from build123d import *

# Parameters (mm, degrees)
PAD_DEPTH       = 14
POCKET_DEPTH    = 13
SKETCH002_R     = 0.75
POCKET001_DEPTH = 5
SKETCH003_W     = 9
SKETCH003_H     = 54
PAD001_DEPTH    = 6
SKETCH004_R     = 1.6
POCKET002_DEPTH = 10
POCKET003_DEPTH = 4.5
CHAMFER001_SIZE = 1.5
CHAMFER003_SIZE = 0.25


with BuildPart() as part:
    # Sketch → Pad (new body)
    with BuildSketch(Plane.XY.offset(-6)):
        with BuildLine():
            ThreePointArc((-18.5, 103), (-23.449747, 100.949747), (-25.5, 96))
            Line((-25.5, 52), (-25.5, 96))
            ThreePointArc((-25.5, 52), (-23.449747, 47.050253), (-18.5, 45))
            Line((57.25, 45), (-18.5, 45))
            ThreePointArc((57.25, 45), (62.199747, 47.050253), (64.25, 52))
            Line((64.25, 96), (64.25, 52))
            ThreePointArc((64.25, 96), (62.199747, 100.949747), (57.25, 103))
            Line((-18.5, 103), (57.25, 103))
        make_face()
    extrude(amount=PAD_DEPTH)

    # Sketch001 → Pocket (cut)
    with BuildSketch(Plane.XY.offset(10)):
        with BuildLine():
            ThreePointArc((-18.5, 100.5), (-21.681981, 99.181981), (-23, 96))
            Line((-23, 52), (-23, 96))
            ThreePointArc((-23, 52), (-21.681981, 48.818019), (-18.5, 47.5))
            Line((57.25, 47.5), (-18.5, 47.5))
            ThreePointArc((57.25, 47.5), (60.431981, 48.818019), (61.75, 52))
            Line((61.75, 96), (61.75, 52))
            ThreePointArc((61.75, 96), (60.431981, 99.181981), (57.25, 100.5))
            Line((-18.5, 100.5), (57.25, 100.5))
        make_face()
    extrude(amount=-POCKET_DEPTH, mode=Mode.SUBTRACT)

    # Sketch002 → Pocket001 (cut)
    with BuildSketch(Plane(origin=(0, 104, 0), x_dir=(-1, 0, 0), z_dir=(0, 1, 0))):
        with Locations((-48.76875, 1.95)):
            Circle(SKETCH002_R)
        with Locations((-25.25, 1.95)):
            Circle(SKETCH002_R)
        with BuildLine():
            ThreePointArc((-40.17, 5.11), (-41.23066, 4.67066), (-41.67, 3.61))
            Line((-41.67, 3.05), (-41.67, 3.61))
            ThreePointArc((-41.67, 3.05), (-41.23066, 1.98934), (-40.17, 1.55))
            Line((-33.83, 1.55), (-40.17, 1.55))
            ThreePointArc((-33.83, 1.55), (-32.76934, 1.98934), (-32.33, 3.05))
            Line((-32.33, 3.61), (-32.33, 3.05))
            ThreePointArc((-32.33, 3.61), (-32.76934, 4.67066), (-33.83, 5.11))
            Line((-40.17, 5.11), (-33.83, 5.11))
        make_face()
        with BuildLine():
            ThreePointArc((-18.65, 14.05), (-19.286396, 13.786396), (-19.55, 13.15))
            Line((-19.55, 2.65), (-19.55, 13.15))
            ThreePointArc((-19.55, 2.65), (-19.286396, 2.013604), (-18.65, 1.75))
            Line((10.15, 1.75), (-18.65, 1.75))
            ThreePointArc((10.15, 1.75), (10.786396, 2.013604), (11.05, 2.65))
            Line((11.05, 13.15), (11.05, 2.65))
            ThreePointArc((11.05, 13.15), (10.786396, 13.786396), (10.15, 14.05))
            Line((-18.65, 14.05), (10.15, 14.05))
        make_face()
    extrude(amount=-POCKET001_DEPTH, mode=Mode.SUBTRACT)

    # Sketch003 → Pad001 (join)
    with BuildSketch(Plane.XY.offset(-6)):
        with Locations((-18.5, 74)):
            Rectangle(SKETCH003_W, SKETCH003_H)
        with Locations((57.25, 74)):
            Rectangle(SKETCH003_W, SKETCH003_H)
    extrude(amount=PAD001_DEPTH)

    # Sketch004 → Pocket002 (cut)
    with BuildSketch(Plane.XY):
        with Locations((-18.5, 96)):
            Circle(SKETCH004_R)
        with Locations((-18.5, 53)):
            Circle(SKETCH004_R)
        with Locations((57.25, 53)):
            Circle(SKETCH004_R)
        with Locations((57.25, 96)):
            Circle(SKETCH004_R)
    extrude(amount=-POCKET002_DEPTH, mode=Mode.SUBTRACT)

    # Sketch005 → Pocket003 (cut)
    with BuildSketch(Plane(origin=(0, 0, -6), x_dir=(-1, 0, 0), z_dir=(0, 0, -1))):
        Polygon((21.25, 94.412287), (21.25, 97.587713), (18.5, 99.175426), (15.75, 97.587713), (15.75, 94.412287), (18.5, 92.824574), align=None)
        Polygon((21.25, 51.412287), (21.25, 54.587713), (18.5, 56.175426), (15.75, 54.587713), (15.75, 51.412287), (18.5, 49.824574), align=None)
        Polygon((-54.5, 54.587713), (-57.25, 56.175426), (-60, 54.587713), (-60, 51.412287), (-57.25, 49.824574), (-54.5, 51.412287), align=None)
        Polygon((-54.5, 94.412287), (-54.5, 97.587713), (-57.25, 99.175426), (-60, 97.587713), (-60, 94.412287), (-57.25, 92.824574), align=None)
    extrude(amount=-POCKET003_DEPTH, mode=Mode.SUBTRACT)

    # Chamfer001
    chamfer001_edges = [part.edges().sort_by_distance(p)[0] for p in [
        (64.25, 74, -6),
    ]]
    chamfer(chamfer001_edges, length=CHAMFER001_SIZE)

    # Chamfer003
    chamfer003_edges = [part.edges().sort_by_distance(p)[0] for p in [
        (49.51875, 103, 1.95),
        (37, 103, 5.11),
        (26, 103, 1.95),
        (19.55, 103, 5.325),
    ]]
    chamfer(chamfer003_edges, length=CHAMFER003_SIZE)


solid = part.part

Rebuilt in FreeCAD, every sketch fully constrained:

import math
import FreeCAD as App
import Part
import Sketcher
from FreeCAD import Vector
Q = App.Units.Quantity


def edges_at(feature, points):
    """Names of the edges that pass closest to the given points."""
    edges = feature.Shape.Edges
    near = lambda p: min(range(len(edges)), key=lambda i: edges[i].distToShape(Part.Vertex(*p))[0])
    return sorted({f"Edge{near(p) + 1}" for p in points})

doc = App.newDocument("Part")
body = doc.addObject("PartDesign::Body", "Body")

sketch1 = body.newObject("Sketcher::SketchObject", "Sketch")
sketch1.AttachmentSupport = (doc.getObject("XY_Plane"), [""])
sketch1.MapMode = "FlatFace"
sketch1.AttachmentOffset = App.Placement(Vector(0, 0, -6), App.Rotation())
sketch1.addGeometry(Part.ArcOfCircle(Part.Circle(Vector(-18, 96, 0), Vector(0, 0, 1), 7), math.radians(90), math.radians(180)), False)
sketch1.addGeometry(Part.LineSegment(Vector(-26, 96, 0), Vector(-26, 52, 0)), False)
sketch1.addGeometry(Part.ArcOfCircle(Part.Circle(Vector(-18, 52, 0), Vector(0, 0, 1), 7), math.radians(-180), math.radians(-90)), False)
sketch1.addGeometry(Part.LineSegment(Vector(-18, 45, 0), Vector(57, 45, 0)), False)
sketch1.addGeometry(Part.ArcOfCircle(Part.Circle(Vector(57, 52, 0), Vector(0, 0, 1), 7), math.radians(-90), math.radians(0)), False)
sketch1.addGeometry(Part.LineSegment(Vector(64, 52, 0), Vector(64, 96, 0)), False)
sketch1.addGeometry(Part.ArcOfCircle(Part.Circle(Vector(57, 96, 0), Vector(0, 0, 1), 7), math.radians(0), math.radians(90)), False)
sketch1.addGeometry(Part.LineSegment(Vector(57, 103, 0), Vector(-18, 103, 0)), False)
sketch1.addConstraint(Sketcher.Constraint("Tangent", 0, 2, 1, 1))
sketch1.addConstraint(Sketcher.Constraint("Tangent", 1, 2, 2, 1))
sketch1.addConstraint(Sketcher.Constraint("Tangent", 2, 2, 3, 1))
sketch1.addConstraint(Sketcher.Constraint("Tangent", 3, 2, 4, 1))
sketch1.addConstraint(Sketcher.Constraint("Tangent", 4, 2, 5, 1))
sketch1.addConstraint(Sketcher.Constraint("Tangent", 5, 2, 6, 1))
sketch1.addConstraint(Sketcher.Constraint("Tangent", 6, 2, 7, 1))
sketch1.addConstraint(Sketcher.Constraint("Tangent", 7, 2, 0, 1))
sketch1.addConstraint(Sketcher.Constraint("Vertical", 1))
sketch1.addConstraint(Sketcher.Constraint("Horizontal", 3))
sketch1.addConstraint(Sketcher.Constraint("Vertical", 5))
sketch1.addConstraint(Sketcher.Constraint("Horizontal", 7))
sketch1.addConstraint(Sketcher.Constraint("Equal", 0, 2))
sketch1.addConstraint(Sketcher.Constraint("Equal", 2, 4))
sketch1.addConstraint(Sketcher.Constraint("Equal", 4, 6))
sketch1.addConstraint(Sketcher.Constraint("Radius", 0, Q("7.000002 mm")))
sketch1.addConstraint(Sketcher.Constraint("DistanceY", 1, 2, 1, 1, Q("44 mm")))
sketch1.addConstraint(Sketcher.Constraint("DistanceY", -1, 1, 0, 3, Q("95.999998 mm")))
sketch1.addConstraint(Sketcher.Constraint("DistanceX", 3, 1, 3, 2, Q("75.75 mm")))
sketch1.addConstraint(Sketcher.Constraint("DistanceX", 0, 3, -1, 1, Q("18.499998 mm")))
pad1 = body.newObject("PartDesign::Pad", "Pad")
pad1.Profile = sketch1
pad1.Length = 14

sketch2 = body.newObject("Sketcher::SketchObject", "Sketch001")
sketch2.AttachmentSupport = (doc.getObject("XY_Plane"), [""])
sketch2.MapMode = "FlatFace"
sketch2.AttachmentOffset = App.Placement(Vector(0, 0, 10), App.Rotation())
sketch2.addGeometry(Part.ArcOfCircle(Part.Circle(Vector(-18.5, 96, 0), Vector(0, 0, 1), 4.5), math.radians(90), math.radians(180)), False)
sketch2.addGeometry(Part.LineSegment(Vector(-23, 96, 0), Vector(-23, 52, 0)), False)
sketch2.addGeometry(Part.ArcOfCircle(Part.Circle(Vector(-18.5, 52, 0), Vector(0, 0, 1), 4.5), math.radians(180), math.radians(270)), False)
sketch2.addGeometry(Part.LineSegment(Vector(-18.5, 47.5, 0), Vector(57.2, 47.5, 0)), False)
sketch2.addGeometry(Part.ArcOfCircle(Part.Circle(Vector(57.3, 52, 0), Vector(0, 0, 1), 4.5), math.radians(-90), math.radians(0)), False)
sketch2.addGeometry(Part.LineSegment(Vector(61.8, 52, 0), Vector(61.8, 96, 0)), False)
sketch2.addGeometry(Part.ArcOfCircle(Part.Circle(Vector(57.3, 96, 0), Vector(0, 0, 1), 4.5), math.radians(0), math.radians(90)), False)
sketch2.addGeometry(Part.LineSegment(Vector(57.2, 100.5, 0), Vector(-18.5, 100.5, 0)), False)
sketch2.addConstraint(Sketcher.Constraint("Tangent", 0, 2, 1, 1))
sketch2.addConstraint(Sketcher.Constraint("Tangent", 1, 2, 2, 1))
sketch2.addConstraint(Sketcher.Constraint("Tangent", 2, 2, 3, 1))
sketch2.addConstraint(Sketcher.Constraint("Tangent", 3, 2, 4, 1))
sketch2.addConstraint(Sketcher.Constraint("Tangent", 4, 2, 5, 1))
sketch2.addConstraint(Sketcher.Constraint("Tangent", 5, 2, 6, 1))
sketch2.addConstraint(Sketcher.Constraint("Tangent", 6, 2, 7, 1))
sketch2.addConstraint(Sketcher.Constraint("Tangent", 7, 2, 0, 1))
sketch2.addConstraint(Sketcher.Constraint("Vertical", 1))
sketch2.addConstraint(Sketcher.Constraint("Horizontal", 3))
sketch2.addConstraint(Sketcher.Constraint("Vertical", 5))
sketch2.addConstraint(Sketcher.Constraint("Horizontal", 7))
sketch2.addConstraint(Sketcher.Constraint("Equal", 0, 2))
sketch2.addConstraint(Sketcher.Constraint("Equal", 2, 4))
sketch2.addConstraint(Sketcher.Constraint("Equal", 4, 6))
sketch2.addConstraint(Sketcher.Constraint("Radius", 0, Q("4.499998 mm")))
sketch2.addConstraint(Sketcher.Constraint("DistanceY", 1, 2, 1, 1, Q("44 mm")))
sketch2.addConstraint(Sketcher.Constraint("DistanceY", -1, 1, 0, 3, Q("96.000002 mm")))
sketch2.addConstraint(Sketcher.Constraint("DistanceX", 0, 2, -1, 1, Q("23 mm")))
sketch2.addConstraint(Sketcher.Constraint("DistanceX", 3, 1, 3, 2, Q("75.75 mm")))
pocket1 = body.newObject("PartDesign::Pocket", "Pocket")
pocket1.Profile = sketch2
pocket1.Length = 13

sketch3 = body.newObject("Sketcher::SketchObject", "Sketch002")
sketch3.AttachmentSupport = (doc.getObject("XZ_Plane"), [""])
sketch3.MapMode = "FlatFace"
sketch3.AttachmentOffset = App.Placement(Vector(0, 0, -104), App.Rotation())
sketch3.addGeometry(Part.Circle(Vector(48.8, 1.9, 0), Vector(0, 0, 1), 0.8), False)
sketch3.addGeometry(Part.Circle(Vector(25.2, 1.9, 0), Vector(0, 0, 1), 0.8), False)
sketch3.addGeometry(Part.ArcOfCircle(Part.Circle(Vector(40.2, 3.6, 0), Vector(0, 0, 1), 1.5), math.radians(0), math.radians(90)), False)
sketch3.addGeometry(Part.LineSegment(Vector(41.7, 3.6, 0), Vector(41.7, 3, 0)), False)
sketch3.addGeometry(Part.ArcOfCircle(Part.Circle(Vector(40.2, 3.1, 0), Vector(0, 0, 1), 1.5), math.radians(-90), math.radians(0)), False)
sketch3.addGeometry(Part.LineSegment(Vector(40.2, 1.6, 0), Vector(33.8, 1.6, 0)), False)
sketch3.addGeometry(Part.ArcOfCircle(Part.Circle(Vector(33.8, 3.1, 0), Vector(0, 0, 1), 1.5), math.radians(-180), math.radians(-90)), False)
sketch3.addGeometry(Part.LineSegment(Vector(32.3, 3, 0), Vector(32.3, 3.6, 0)), False)
sketch3.addGeometry(Part.ArcOfCircle(Part.Circle(Vector(33.8, 3.6, 0), Vector(0, 0, 1), 1.5), math.radians(90), math.radians(180)), False)
sketch3.addGeometry(Part.LineSegment(Vector(33.8, 5.1, 0), Vector(40.2, 5.1, 0)), False)
sketch3.addGeometry(Part.ArcOfCircle(Part.Circle(Vector(18.6, 13.1, 0), Vector(0, 0, 1), 0.9), math.radians(0), math.radians(90)), False)
sketch3.addGeometry(Part.LineSegment(Vector(19.6, 13.2, 0), Vector(19.6, 2.6, 0)), False)
sketch3.addGeometry(Part.ArcOfCircle(Part.Circle(Vector(18.6, 2.7, 0), Vector(0, 0, 1), 0.9), math.radians(-90), math.radians(0)), False)
sketch3.addGeometry(Part.LineSegment(Vector(18.6, 1.8, 0), Vector(-10.2, 1.8, 0)), False)
sketch3.addGeometry(Part.ArcOfCircle(Part.Circle(Vector(-10.1, 2.7, 0), Vector(0, 0, 1), 0.9), math.radians(-180), math.radians(-90)), False)
sketch3.addGeometry(Part.LineSegment(Vector(-11.1, 2.6, 0), Vector(-11.1, 13.2, 0)), False)
sketch3.addGeometry(Part.ArcOfCircle(Part.Circle(Vector(-10.1, 13.1, 0), Vector(0, 0, 1), 0.9), math.radians(90), math.radians(180)), False)
sketch3.addGeometry(Part.LineSegment(Vector(-10.2, 14.1, 0), Vector(18.6, 14.1, 0)), False)
sketch3.addConstraint(Sketcher.Constraint("Tangent", 2, 1, 3, 1))
sketch3.addConstraint(Sketcher.Constraint("Tangent", 3, 2, 4, 2))
sketch3.addConstraint(Sketcher.Constraint("Tangent", 4, 1, 5, 1))
sketch3.addConstraint(Sketcher.Constraint("Tangent", 5, 2, 6, 2))
sketch3.addConstraint(Sketcher.Constraint("Tangent", 6, 1, 7, 1))
sketch3.addConstraint(Sketcher.Constraint("Tangent", 7, 2, 8, 2))
sketch3.addConstraint(Sketcher.Constraint("Tangent", 8, 1, 9, 1))
sketch3.addConstraint(Sketcher.Constraint("Tangent", 9, 2, 2, 2))
sketch3.addConstraint(Sketcher.Constraint("Tangent", 10, 1, 11, 1))
sketch3.addConstraint(Sketcher.Constraint("Tangent", 11, 2, 12, 2))
sketch3.addConstraint(Sketcher.Constraint("Tangent", 12, 1, 13, 1))
sketch3.addConstraint(Sketcher.Constraint("Tangent", 13, 2, 14, 2))
sketch3.addConstraint(Sketcher.Constraint("Tangent", 14, 1, 15, 1))
sketch3.addConstraint(Sketcher.Constraint("Tangent", 15, 2, 16, 2))
sketch3.addConstraint(Sketcher.Constraint("Tangent", 16, 1, 17, 1))
sketch3.addConstraint(Sketcher.Constraint("Tangent", 17, 2, 10, 2))
sketch3.addConstraint(Sketcher.Constraint("Vertical", 3))
sketch3.addConstraint(Sketcher.Constraint("Horizontal", 5))
sketch3.addConstraint(Sketcher.Constraint("Vertical", 7))
sketch3.addConstraint(Sketcher.Constraint("Horizontal", 9))
sketch3.addConstraint(Sketcher.Constraint("Vertical", 11))
sketch3.addConstraint(Sketcher.Constraint("Horizontal", 13))
sketch3.addConstraint(Sketcher.Constraint("Vertical", 15))
sketch3.addConstraint(Sketcher.Constraint("Horizontal", 17))
sketch3.addConstraint(Sketcher.Constraint("Equal", 0, 1))
sketch3.addConstraint(Sketcher.Constraint("Equal", 2, 4))
sketch3.addConstraint(Sketcher.Constraint("Equal", 4, 6))
sketch3.addConstraint(Sketcher.Constraint("Equal", 6, 8))
sketch3.addConstraint(Sketcher.Constraint("Equal", 10, 12))
sketch3.addConstraint(Sketcher.Constraint("Equal", 12, 14))
sketch3.addConstraint(Sketcher.Constraint("Equal", 14, 16))
sketch3.addConstraint(Sketcher.Constraint("Horizontal", 0, 3, 1, 3))
sketch3.addConstraint(Sketcher.Constraint("Diameter", 0, Q("1.5 mm")))
sketch3.addConstraint(Sketcher.Constraint("Radius", 2, Q("1.500001 mm")))
sketch3.addConstraint(Sketcher.Constraint("Radius", 10, Q("0.9 mm")))
sketch3.addConstraint(Sketcher.Constraint("DistanceX", 13, 2, 13, 1, Q("28.8 mm")))
sketch3.addConstraint(Sketcher.Constraint("DistanceY", 11, 2, 11, 1, Q("10.5 mm")))
sketch3.addConstraint(Sketcher.Constraint("DistanceX", 5, 2, 5, 1, Q("6.34 mm")))
sketch3.addConstraint(Sketcher.Constraint("DistanceY", 3, 2, 3, 1, Q("0.56 mm")))
sketch3.addConstraint(Sketcher.Constraint("DistanceY", 0, 3, 4, 3, Q("1.100001 mm")))
sketch3.addConstraint(Sketcher.Constraint("DistanceX", 10, 3, 1, 3, Q("6.6 mm")))
sketch3.addConstraint(Sketcher.Constraint("DistanceY", 1, 3, 10, 3, Q("11.2 mm")))
sketch3.addConstraint(Sketcher.Constraint("DistanceY", -1, 1, 0, 3, Q("1.95 mm")))
sketch3.addConstraint(Sketcher.Constraint("DistanceX", -1, 1, 1, 3, Q("25.25 mm")))
sketch3.addConstraint(Sketcher.Constraint("DistanceX", -1, 1, 2, 3, Q("40.169999 mm")))
sketch3.addConstraint(Sketcher.Constraint("DistanceX", -1, 1, 0, 3, Q("48.76875 mm")))
pocket2 = body.newObject("PartDesign::Pocket", "Pocket001")
pocket2.Profile = sketch3
pocket2.Length = 5
pocket2.Reversed = True

sketch4 = body.newObject("Sketcher::SketchObject", "Sketch003")
sketch4.AttachmentSupport = (doc.getObject("XY_Plane"), [""])
sketch4.MapMode = "FlatFace"
sketch4.AttachmentOffset = App.Placement(Vector(0, 0, -6), App.Rotation())
sketch4.addGeometry(Part.LineSegment(Vector(-23, 101, 0), Vector(-23, 47, 0)), False)
sketch4.addGeometry(Part.LineSegment(Vector(-23, 47, 0), Vector(-14, 47, 0)), False)
sketch4.addGeometry(Part.LineSegment(Vector(-14, 47, 0), Vector(-14, 101, 0)), False)
sketch4.addGeometry(Part.LineSegment(Vector(-14, 101, 0), Vector(-23, 101, 0)), False)
sketch4.addGeometry(Part.LineSegment(Vector(53, 101, 0), Vector(53, 47, 0)), False)
sketch4.addGeometry(Part.LineSegment(Vector(53, 47, 0), Vector(62, 47, 0)), False)
sketch4.addGeometry(Part.LineSegment(Vector(62, 47, 0), Vector(62, 101, 0)), False)
sketch4.addGeometry(Part.LineSegment(Vector(62, 101, 0), Vector(53, 101, 0)), False)
sketch4.addConstraint(Sketcher.Constraint("Coincident", 0, 2, 1, 1))
sketch4.addConstraint(Sketcher.Constraint("Coincident", 1, 2, 2, 1))
sketch4.addConstraint(Sketcher.Constraint("Coincident", 2, 2, 3, 1))
sketch4.addConstraint(Sketcher.Constraint("Coincident", 3, 2, 0, 1))
sketch4.addConstraint(Sketcher.Constraint("Coincident", 4, 2, 5, 1))
sketch4.addConstraint(Sketcher.Constraint("Coincident", 5, 2, 6, 1))
sketch4.addConstraint(Sketcher.Constraint("Coincident", 6, 2, 7, 1))
sketch4.addConstraint(Sketcher.Constraint("Coincident", 7, 2, 4, 1))
sketch4.addConstraint(Sketcher.Constraint("Vertical", 0))
sketch4.addConstraint(Sketcher.Constraint("Horizontal", 1))
sketch4.addConstraint(Sketcher.Constraint("Vertical", 2))
sketch4.addConstraint(Sketcher.Constraint("Horizontal", 3))
sketch4.addConstraint(Sketcher.Constraint("Vertical", 4))
sketch4.addConstraint(Sketcher.Constraint("Horizontal", 5))
sketch4.addConstraint(Sketcher.Constraint("Vertical", 6))
sketch4.addConstraint(Sketcher.Constraint("Horizontal", 7))
sketch4.addConstraint(Sketcher.Constraint("Horizontal", 1, 2, 4, 2))
sketch4.addConstraint(Sketcher.Constraint("Horizontal", 3, 2, 6, 2))
sketch4.addConstraint(Sketcher.Constraint("Equal", 3, 5))
sketch4.addConstraint(Sketcher.Constraint("DistanceX", 1, 1, 1, 2, Q("9 mm")))
sketch4.addConstraint(Sketcher.Constraint("DistanceY", 0, 2, 0, 1, Q("54 mm")))
sketch4.addConstraint(Sketcher.Constraint("DistanceX", 0, 2, -1, 1, Q("23 mm")))
sketch4.addConstraint(Sketcher.Constraint("DistanceY", -1, 1, 0, 2, Q("47 mm")))
sketch4.addConstraint(Sketcher.Constraint("DistanceX", -1, 1, 4, 2, Q("52.75 mm")))
pad2 = body.newObject("PartDesign::Pad", "Pad001")
pad2.Profile = sketch4
pad2.Length = 6

sketch5 = body.newObject("Sketcher::SketchObject", "Sketch004")
sketch5.AttachmentSupport = (doc.getObject("XY_Plane"), [""])
sketch5.MapMode = "FlatFace"
sketch5.addGeometry(Part.Circle(Vector(-18.5, 96, 0), Vector(0, 0, 1), 1.6), False)
sketch5.addGeometry(Part.Circle(Vector(-18.5, 53, 0), Vector(0, 0, 1), 1.6), False)
sketch5.addGeometry(Part.Circle(Vector(57.2, 53, 0), Vector(0, 0, 1), 1.6), False)
sketch5.addGeometry(Part.Circle(Vector(57.2, 96, 0), Vector(0, 0, 1), 1.6), False)
sketch5.addConstraint(Sketcher.Constraint("Equal", 0, 1))
sketch5.addConstraint(Sketcher.Constraint("Equal", 1, 2))
sketch5.addConstraint(Sketcher.Constraint("Equal", 2, 3))
sketch5.addConstraint(Sketcher.Constraint("Horizontal", 1, 3, 2, 3))
sketch5.addConstraint(Sketcher.Constraint("Horizontal", 0, 3, 3, 3))
sketch5.addConstraint(Sketcher.Constraint("Vertical", 0, 3, 1, 3))
sketch5.addConstraint(Sketcher.Constraint("Vertical", 2, 3, 3, 3))
sketch5.addConstraint(Sketcher.Constraint("Diameter", 0, Q("3.2 mm")))
sketch5.addConstraint(Sketcher.Constraint("DistanceY", -1, 1, 0, 3, Q("96 mm")))
sketch5.addConstraint(Sketcher.Constraint("DistanceY", -1, 1, 1, 3, Q("53 mm")))
sketch5.addConstraint(Sketcher.Constraint("DistanceX", 0, 3, -1, 1, Q("18.5 mm")))
sketch5.addConstraint(Sketcher.Constraint("DistanceX", -1, 1, 2, 3, Q("57.25 mm")))
pocket3 = body.newObject("PartDesign::Pocket", "Pocket002")
pocket3.Profile = sketch5
pocket3.Length = 10

sketch6 = body.newObject("Sketcher::SketchObject", "Sketch005")
sketch6.AttachmentSupport = (doc.getObject("XY_Plane"), [""])
sketch6.MapMode = "FlatFace"
sketch6.AttachmentOffset = App.Placement(Vector(0, 0, -6), App.Rotation())
sketch6.addGeometry(Part.LineSegment(Vector(-21.2, 94.4, 0), Vector(-21.2, 97.6, 0)), False)
sketch6.addGeometry(Part.LineSegment(Vector(-21.2, 97.6, 0), Vector(-18.5, 99.2, 0)), False)
sketch6.addGeometry(Part.LineSegment(Vector(-18.5, 99.2, 0), Vector(-15.8, 97.6, 0)), False)
sketch6.addGeometry(Part.LineSegment(Vector(-15.8, 97.6, 0), Vector(-15.8, 94.4, 0)), False)
sketch6.addGeometry(Part.LineSegment(Vector(-15.8, 94.4, 0), Vector(-18.5, 92.8, 0)), False)
sketch6.addGeometry(Part.LineSegment(Vector(-18.5, 92.8, 0), Vector(-21.2, 94.4, 0)), False)
sketch6.addGeometry(Part.LineSegment(Vector(-21.2, 51.4, 0), Vector(-21.2, 54.6, 0)), False)
sketch6.addGeometry(Part.LineSegment(Vector(-21.2, 54.6, 0), Vector(-18.5, 56.2, 0)), False)
sketch6.addGeometry(Part.LineSegment(Vector(-18.5, 56.2, 0), Vector(-15.8, 54.6, 0)), False)
sketch6.addGeometry(Part.LineSegment(Vector(-15.8, 54.6, 0), Vector(-15.8, 51.4, 0)), False)
sketch6.addGeometry(Part.LineSegment(Vector(-15.8, 51.4, 0), Vector(-18.5, 49.8, 0)), False)
sketch6.addGeometry(Part.LineSegment(Vector(-18.5, 49.8, 0), Vector(-21.2, 51.4, 0)), False)
sketch6.addGeometry(Part.LineSegment(Vector(54.5, 54.6, 0), Vector(57.2, 56.2, 0)), False)
sketch6.addGeometry(Part.LineSegment(Vector(57.2, 56.2, 0), Vector(60, 54.6, 0)), False)
sketch6.addGeometry(Part.LineSegment(Vector(60, 54.6, 0), Vector(60, 51.4, 0)), False)
sketch6.addGeometry(Part.LineSegment(Vector(60, 51.4, 0), Vector(57.2, 49.8, 0)), False)
sketch6.addGeometry(Part.LineSegment(Vector(57.2, 49.8, 0), Vector(54.5, 51.4, 0)), False)
sketch6.addGeometry(Part.LineSegment(Vector(54.5, 51.4, 0), Vector(54.5, 54.6, 0)), False)
sketch6.addGeometry(Part.LineSegment(Vector(54.5, 94.4, 0), Vector(54.5, 97.6, 0)), False)
sketch6.addGeometry(Part.LineSegment(Vector(54.5, 97.6, 0), Vector(57.2, 99.2, 0)), False)
sketch6.addGeometry(Part.LineSegment(Vector(57.2, 99.2, 0), Vector(60, 97.6, 0)), False)
sketch6.addGeometry(Part.LineSegment(Vector(60, 97.6, 0), Vector(60, 94.4, 0)), False)
sketch6.addGeometry(Part.LineSegment(Vector(60, 94.4, 0), Vector(57.2, 92.8, 0)), False)
sketch6.addGeometry(Part.LineSegment(Vector(57.2, 92.8, 0), Vector(54.5, 94.4, 0)), False)
sketch6.addConstraint(Sketcher.Constraint("Coincident", 0, 2, 1, 1))
sketch6.addConstraint(Sketcher.Constraint("Coincident", 1, 2, 2, 1))
sketch6.addConstraint(Sketcher.Constraint("Coincident", 2, 2, 3, 1))
sketch6.addConstraint(Sketcher.Constraint("Coincident", 3, 2, 4, 1))
sketch6.addConstraint(Sketcher.Constraint("Coincident", 4, 2, 5, 1))
sketch6.addConstraint(Sketcher.Constraint("Coincident", 5, 2, 0, 1))
sketch6.addConstraint(Sketcher.Constraint("Coincident", 6, 2, 7, 1))
sketch6.addConstraint(Sketcher.Constraint("Coincident", 7, 2, 8, 1))
sketch6.addConstraint(Sketcher.Constraint("Coincident", 8, 2, 9, 1))
sketch6.addConstraint(Sketcher.Constraint("Coincident", 9, 2, 10, 1))
sketch6.addConstraint(Sketcher.Constraint("Coincident", 10, 2, 11, 1))
sketch6.addConstraint(Sketcher.Constraint("Coincident", 11, 2, 6, 1))
sketch6.addConstraint(Sketcher.Constraint("Coincident", 12, 2, 13, 1))
sketch6.addConstraint(Sketcher.Constraint("Coincident", 13, 2, 14, 1))
sketch6.addConstraint(Sketcher.Constraint("Coincident", 14, 2, 15, 1))
sketch6.addConstraint(Sketcher.Constraint("Coincident", 15, 2, 16, 1))
sketch6.addConstraint(Sketcher.Constraint("Coincident", 16, 2, 17, 1))
sketch6.addConstraint(Sketcher.Constraint("Coincident", 17, 2, 12, 1))
sketch6.addConstraint(Sketcher.Constraint("Coincident", 18, 2, 19, 1))
sketch6.addConstraint(Sketcher.Constraint("Coincident", 19, 2, 20, 1))
sketch6.addConstraint(Sketcher.Constraint("Coincident", 20, 2, 21, 1))
sketch6.addConstraint(Sketcher.Constraint("Coincident", 21, 2, 22, 1))
sketch6.addConstraint(Sketcher.Constraint("Coincident", 22, 2, 23, 1))
sketch6.addConstraint(Sketcher.Constraint("Coincident", 23, 2, 18, 1))
sketch6.addConstraint(Sketcher.Constraint("Vertical", 0))
sketch6.addConstraint(Sketcher.Constraint("Vertical", 3))
sketch6.addConstraint(Sketcher.Constraint("Vertical", 6))
sketch6.addConstraint(Sketcher.Constraint("Vertical", 9))
sketch6.addConstraint(Sketcher.Constraint("Vertical", 14))
sketch6.addConstraint(Sketcher.Constraint("Vertical", 17))
sketch6.addConstraint(Sketcher.Constraint("Vertical", 18))
sketch6.addConstraint(Sketcher.Constraint("Vertical", 21))
sketch6.addConstraint(Sketcher.Constraint("Parallel", 1, 4))
sketch6.addConstraint(Sketcher.Constraint("Parallel", 2, 5))
sketch6.addConstraint(Sketcher.Constraint("Parallel", 4, 7))
sketch6.addConstraint(Sketcher.Constraint("Parallel", 5, 8))
sketch6.addConstraint(Sketcher.Constraint("Parallel", 7, 10))
sketch6.addConstraint(Sketcher.Constraint("Parallel", 8, 11))
sketch6.addConstraint(Sketcher.Constraint("Parallel", 10, 12))
sketch6.addConstraint(Sketcher.Constraint("Parallel", 11, 13))
sketch6.addConstraint(Sketcher.Constraint("Parallel", 12, 15))
sketch6.addConstraint(Sketcher.Constraint("Parallel", 13, 16))
sketch6.addConstraint(Sketcher.Constraint("Parallel", 15, 19))
sketch6.addConstraint(Sketcher.Constraint("Parallel", 16, 20))
sketch6.addConstraint(Sketcher.Constraint("Parallel", 19, 22))
sketch6.addConstraint(Sketcher.Constraint("Parallel", 20, 23))
sketch6.addConstraint(Sketcher.Constraint("Horizontal", 0, 2, 2, 2))
sketch6.addConstraint(Sketcher.Constraint("Horizontal", 3, 2, 5, 2))
sketch6.addConstraint(Sketcher.Constraint("Horizontal", 6, 2, 8, 2))
sketch6.addConstraint(Sketcher.Constraint("Horizontal", 9, 2, 11, 2))
sketch6.addConstraint(Sketcher.Constraint("Horizontal", 7, 2, 12, 2))
sketch6.addConstraint(Sketcher.Constraint("Horizontal", 8, 2, 13, 2))
sketch6.addConstraint(Sketcher.Constraint("Horizontal", 11, 2, 14, 2))
sketch6.addConstraint(Sketcher.Constraint("Horizontal", 10, 2, 15, 2))
sketch6.addConstraint(Sketcher.Constraint("Horizontal", 14, 2, 16, 2))
sketch6.addConstraint(Sketcher.Constraint("Horizontal", 2, 2, 18, 2))
sketch6.addConstraint(Sketcher.Constraint("Horizontal", 1, 2, 19, 2))
sketch6.addConstraint(Sketcher.Constraint("Horizontal", 18, 2, 20, 2))
sketch6.addConstraint(Sketcher.Constraint("Horizontal", 5, 2, 21, 2))
sketch6.addConstraint(Sketcher.Constraint("Horizontal", 4, 2, 22, 2))
sketch6.addConstraint(Sketcher.Constraint("Vertical", 1, 2, 4, 2))
sketch6.addConstraint(Sketcher.Constraint("Vertical", 5, 2, 6, 2))
sketch6.addConstraint(Sketcher.Constraint("Vertical", 4, 2, 7, 2))
sketch6.addConstraint(Sketcher.Constraint("Vertical", 17, 2, 18, 2))
sketch6.addConstraint(Sketcher.Constraint("Equal", 3, 6))
sketch6.addConstraint(Sketcher.Constraint("Angle", 1, Q("29.999996 deg")))
sketch6.addConstraint(Sketcher.Constraint("DistanceX", -1, 1, 13, 2, Q("60 mm")))
sketch6.addConstraint(Sketcher.Constraint("DistanceY", 6, 2, 0, 2, Q("43 mm")))
sketch6.addConstraint(Sketcher.Constraint("DistanceX", 8, 2, 12, 2, Q("73 mm")))
sketch6.addConstraint(Sketcher.Constraint("DistanceX", 1, 2, -1, 1, Q("18.5 mm")))
sketch6.addConstraint(Sketcher.Constraint("DistanceY", 0, 1, 0, 2, Q("3.175426 mm")))
sketch6.addConstraint(Sketcher.Constraint("DistanceY", -1, 1, 0, 2, Q("97.587713 mm")))
pocket4 = body.newObject("PartDesign::Pocket", "Pocket003")
pocket4.Profile = sketch6
pocket4.Length = 4.5
pocket4.Reversed = True
doc.recompute()

chamfer = body.newObject("PartDesign::Chamfer", "Chamfer")
chamfer.Base = (pocket4, edges_at(pocket4, [(64.25, 74, -6)]))
chamfer.Size = 1.5
doc.recompute()

chamfer2 = body.newObject("PartDesign::Chamfer", "Chamfer001")
chamfer2.Base = (chamfer, edges_at(chamfer, [
    (49.519, 103, 1.95),
    (37, 103, 5.11),
    (26, 103, 1.95),
    (19.55, 103, 5.325),
]))
chamfer2.Size = 0.25

doc.recompute()
